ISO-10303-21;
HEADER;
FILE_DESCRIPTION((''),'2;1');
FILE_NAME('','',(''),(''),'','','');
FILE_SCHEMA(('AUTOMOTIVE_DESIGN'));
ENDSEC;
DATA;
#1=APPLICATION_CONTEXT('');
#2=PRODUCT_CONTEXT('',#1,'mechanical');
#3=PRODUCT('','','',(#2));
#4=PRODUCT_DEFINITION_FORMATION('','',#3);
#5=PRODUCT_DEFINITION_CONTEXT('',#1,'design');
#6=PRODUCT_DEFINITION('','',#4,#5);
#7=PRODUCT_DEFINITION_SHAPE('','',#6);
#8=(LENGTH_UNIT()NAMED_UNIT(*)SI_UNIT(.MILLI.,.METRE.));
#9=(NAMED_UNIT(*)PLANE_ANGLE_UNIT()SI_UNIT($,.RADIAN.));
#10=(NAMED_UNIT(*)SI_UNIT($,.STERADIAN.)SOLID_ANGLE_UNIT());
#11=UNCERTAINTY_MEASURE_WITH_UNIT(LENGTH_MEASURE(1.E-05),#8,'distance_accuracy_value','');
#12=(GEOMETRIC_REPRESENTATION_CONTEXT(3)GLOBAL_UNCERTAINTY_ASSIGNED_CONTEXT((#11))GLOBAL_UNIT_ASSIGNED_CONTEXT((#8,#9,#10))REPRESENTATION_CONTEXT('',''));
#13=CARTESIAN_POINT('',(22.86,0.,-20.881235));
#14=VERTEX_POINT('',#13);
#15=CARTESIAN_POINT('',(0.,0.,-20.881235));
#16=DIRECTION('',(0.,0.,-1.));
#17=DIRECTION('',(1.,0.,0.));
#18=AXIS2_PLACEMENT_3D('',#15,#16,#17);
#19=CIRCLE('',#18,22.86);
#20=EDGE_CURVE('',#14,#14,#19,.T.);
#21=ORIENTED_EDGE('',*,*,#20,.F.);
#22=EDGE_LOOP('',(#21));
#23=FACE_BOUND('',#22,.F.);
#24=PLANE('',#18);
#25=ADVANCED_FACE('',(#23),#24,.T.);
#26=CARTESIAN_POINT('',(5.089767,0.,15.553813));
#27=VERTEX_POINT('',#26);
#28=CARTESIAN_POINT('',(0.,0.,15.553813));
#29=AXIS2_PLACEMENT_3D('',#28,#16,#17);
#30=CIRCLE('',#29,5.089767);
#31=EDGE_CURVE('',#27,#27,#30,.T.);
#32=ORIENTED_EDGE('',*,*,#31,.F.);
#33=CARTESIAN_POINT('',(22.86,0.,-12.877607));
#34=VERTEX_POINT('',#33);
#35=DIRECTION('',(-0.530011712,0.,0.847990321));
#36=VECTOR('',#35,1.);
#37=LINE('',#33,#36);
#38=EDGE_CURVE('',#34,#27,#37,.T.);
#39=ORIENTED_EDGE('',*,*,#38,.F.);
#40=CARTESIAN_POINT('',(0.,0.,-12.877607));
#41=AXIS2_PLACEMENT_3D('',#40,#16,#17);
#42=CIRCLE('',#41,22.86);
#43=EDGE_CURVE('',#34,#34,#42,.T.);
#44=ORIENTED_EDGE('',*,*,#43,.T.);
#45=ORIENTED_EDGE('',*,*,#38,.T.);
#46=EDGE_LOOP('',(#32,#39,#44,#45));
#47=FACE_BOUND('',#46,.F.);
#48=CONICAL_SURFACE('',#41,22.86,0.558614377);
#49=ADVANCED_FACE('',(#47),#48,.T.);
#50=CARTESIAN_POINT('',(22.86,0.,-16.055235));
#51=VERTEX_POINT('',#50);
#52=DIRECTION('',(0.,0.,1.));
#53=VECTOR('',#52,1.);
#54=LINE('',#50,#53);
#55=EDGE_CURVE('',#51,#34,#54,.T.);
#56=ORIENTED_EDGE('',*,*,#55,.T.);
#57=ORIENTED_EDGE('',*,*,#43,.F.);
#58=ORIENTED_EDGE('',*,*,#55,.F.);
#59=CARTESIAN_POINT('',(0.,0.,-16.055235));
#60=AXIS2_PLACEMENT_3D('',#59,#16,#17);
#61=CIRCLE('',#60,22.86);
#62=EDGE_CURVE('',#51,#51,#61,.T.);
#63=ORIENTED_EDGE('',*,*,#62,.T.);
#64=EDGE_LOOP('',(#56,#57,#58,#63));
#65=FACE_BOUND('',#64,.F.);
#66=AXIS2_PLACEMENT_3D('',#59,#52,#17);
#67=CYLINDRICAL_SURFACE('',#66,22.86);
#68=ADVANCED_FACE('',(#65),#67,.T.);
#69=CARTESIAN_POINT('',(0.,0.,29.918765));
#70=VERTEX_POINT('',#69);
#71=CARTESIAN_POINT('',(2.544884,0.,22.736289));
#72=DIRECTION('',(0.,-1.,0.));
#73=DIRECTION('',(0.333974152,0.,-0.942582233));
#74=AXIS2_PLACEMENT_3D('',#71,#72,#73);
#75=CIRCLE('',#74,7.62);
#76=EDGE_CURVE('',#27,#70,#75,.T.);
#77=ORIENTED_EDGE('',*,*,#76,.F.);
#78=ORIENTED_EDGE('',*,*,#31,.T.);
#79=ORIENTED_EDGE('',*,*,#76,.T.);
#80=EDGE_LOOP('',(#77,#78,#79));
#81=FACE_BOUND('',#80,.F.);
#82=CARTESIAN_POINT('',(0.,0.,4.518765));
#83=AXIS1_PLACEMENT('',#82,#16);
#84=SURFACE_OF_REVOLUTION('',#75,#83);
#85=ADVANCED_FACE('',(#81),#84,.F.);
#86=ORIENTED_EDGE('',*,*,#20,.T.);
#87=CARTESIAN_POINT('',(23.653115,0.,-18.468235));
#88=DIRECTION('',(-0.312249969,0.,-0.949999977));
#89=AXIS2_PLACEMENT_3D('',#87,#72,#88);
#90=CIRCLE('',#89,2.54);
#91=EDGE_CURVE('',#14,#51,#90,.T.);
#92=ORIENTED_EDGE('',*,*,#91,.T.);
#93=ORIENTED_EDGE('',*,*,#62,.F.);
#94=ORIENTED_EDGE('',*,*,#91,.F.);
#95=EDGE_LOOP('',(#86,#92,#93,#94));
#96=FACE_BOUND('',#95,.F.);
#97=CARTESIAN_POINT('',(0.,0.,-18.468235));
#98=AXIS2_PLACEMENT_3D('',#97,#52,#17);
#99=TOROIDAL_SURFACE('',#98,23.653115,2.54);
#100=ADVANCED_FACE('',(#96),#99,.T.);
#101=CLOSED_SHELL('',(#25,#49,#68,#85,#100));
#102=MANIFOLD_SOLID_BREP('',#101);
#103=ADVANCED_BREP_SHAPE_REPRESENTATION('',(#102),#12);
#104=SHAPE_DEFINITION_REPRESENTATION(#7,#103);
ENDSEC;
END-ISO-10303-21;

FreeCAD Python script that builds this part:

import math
import FreeCAD as App
import Part
import Sketcher
Q = App.Units.Quantity

doc = App.newDocument("Part")
body = doc.addObject("PartDesign::Body", "Body")

sketch1 = body.newObject("Sketcher::SketchObject", "Sketch")
sketch1.AttachmentSupport = (doc.getObject("XZ_Plane"), [""])
sketch1.MapMode = "FlatFace"
sketch1.addGeometry(Part.ArcOfCircle(Part.Circle(App.Vector(2.544884, 22.736289, 0), App.Vector(0, 0, 1), 7.62), math.radians(-70.489831), math.radians(109.510178)), False)
sketch1.addGeometry(Part.LineSegment(App.Vector(0, 29.918765, 0), App.Vector(0, -20.881235, 0)), False)
sketch1.addGeometry(Part.LineSegment(App.Vector(0, -20.881235, 0), App.Vector(22.86, -20.881235, 0)), False)
sketch1.addGeometry(Part.ArcOfCircle(Part.Circle(App.Vector(23.653115, -18.468235, 0), App.Vector(0, 0, 1), 2.54), math.radians(-108.194877), math.radians(108.194877)), False)
sketch1.addGeometry(Part.LineSegment(App.Vector(22.86, -16.055235, 0), App.Vector(22.86, -12.877607, 0)), False)
sketch1.addGeometry(Part.LineSegment(App.Vector(22.86, -12.877607, 0), App.Vector(5.089767, 15.553813, 0)), False)
sketch1.addConstraint(Sketcher.Constraint("Coincident", 0, 2, 1, 1))
sketch1.addConstraint(Sketcher.Constraint("Coincident", 1, 2, 2, 1))
sketch1.addConstraint(Sketcher.Constraint("Coincident", 2, 2, 3, 1))
sketch1.addConstraint(Sketcher.Constraint("Coincident", 3, 2, 4, 1))
sketch1.addConstraint(Sketcher.Constraint("Coincident", 4, 2, 5, 1))
sketch1.addConstraint(Sketcher.Constraint("Coincident", 5, 2, 0, 1))
sketch1.addConstraint(Sketcher.Constraint("Vertical", 1))
sketch1.addConstraint(Sketcher.Constraint("Horizontal", 2))
sketch1.addConstraint(Sketcher.Constraint("Vertical", 4))
sketch1.addConstraint(Sketcher.Constraint("PointOnObject", 0, 2, -2))
sketch1.addConstraint(Sketcher.Constraint("Vertical", 2, 2, 3, 2))
sketch1.addConstraint(Sketcher.Constraint("Radius", 0, Q("0.3 in")))
sketch1.addConstraint(Sketcher.Constraint("Radius", 3, Q("0.1 in")))
sketch1.addConstraint(Sketcher.Constraint("DistanceY", 1, 2, 1, 1, Q("2 in")))
sketch1.addConstraint(Sketcher.Constraint("DistanceX", 2, 1, 2, 2, Q("0.9 in")))
sketch1.addConstraint(Sketcher.Constraint("Distance", 5, Q("1.32 in")))
sketch1.addConstraint(Sketcher.Constraint("DistanceY", 2, 2, 3, 2, Q("0.19 in")))
sketch1.addConstraint(Sketcher.Constraint("DistanceY", 4, 1, 4, 2, Q("3.177628 mm")))
sketch1.addConstraint(Sketcher.Constraint("DistanceY", -1, 1, 0, 3, Q("22.736289 mm")))
sketch1.addConstraint(Sketcher.Constraint("DistanceX", 0, 3, 3, 3, Q("21.108231 mm")))
revolution = body.newObject("PartDesign::Revolution", "Revolution")
revolution.Profile = sketch1
revolution.ReferenceAxis = (sketch1, ["V_Axis"])
revolution.Angle = 360

doc.recompute()
